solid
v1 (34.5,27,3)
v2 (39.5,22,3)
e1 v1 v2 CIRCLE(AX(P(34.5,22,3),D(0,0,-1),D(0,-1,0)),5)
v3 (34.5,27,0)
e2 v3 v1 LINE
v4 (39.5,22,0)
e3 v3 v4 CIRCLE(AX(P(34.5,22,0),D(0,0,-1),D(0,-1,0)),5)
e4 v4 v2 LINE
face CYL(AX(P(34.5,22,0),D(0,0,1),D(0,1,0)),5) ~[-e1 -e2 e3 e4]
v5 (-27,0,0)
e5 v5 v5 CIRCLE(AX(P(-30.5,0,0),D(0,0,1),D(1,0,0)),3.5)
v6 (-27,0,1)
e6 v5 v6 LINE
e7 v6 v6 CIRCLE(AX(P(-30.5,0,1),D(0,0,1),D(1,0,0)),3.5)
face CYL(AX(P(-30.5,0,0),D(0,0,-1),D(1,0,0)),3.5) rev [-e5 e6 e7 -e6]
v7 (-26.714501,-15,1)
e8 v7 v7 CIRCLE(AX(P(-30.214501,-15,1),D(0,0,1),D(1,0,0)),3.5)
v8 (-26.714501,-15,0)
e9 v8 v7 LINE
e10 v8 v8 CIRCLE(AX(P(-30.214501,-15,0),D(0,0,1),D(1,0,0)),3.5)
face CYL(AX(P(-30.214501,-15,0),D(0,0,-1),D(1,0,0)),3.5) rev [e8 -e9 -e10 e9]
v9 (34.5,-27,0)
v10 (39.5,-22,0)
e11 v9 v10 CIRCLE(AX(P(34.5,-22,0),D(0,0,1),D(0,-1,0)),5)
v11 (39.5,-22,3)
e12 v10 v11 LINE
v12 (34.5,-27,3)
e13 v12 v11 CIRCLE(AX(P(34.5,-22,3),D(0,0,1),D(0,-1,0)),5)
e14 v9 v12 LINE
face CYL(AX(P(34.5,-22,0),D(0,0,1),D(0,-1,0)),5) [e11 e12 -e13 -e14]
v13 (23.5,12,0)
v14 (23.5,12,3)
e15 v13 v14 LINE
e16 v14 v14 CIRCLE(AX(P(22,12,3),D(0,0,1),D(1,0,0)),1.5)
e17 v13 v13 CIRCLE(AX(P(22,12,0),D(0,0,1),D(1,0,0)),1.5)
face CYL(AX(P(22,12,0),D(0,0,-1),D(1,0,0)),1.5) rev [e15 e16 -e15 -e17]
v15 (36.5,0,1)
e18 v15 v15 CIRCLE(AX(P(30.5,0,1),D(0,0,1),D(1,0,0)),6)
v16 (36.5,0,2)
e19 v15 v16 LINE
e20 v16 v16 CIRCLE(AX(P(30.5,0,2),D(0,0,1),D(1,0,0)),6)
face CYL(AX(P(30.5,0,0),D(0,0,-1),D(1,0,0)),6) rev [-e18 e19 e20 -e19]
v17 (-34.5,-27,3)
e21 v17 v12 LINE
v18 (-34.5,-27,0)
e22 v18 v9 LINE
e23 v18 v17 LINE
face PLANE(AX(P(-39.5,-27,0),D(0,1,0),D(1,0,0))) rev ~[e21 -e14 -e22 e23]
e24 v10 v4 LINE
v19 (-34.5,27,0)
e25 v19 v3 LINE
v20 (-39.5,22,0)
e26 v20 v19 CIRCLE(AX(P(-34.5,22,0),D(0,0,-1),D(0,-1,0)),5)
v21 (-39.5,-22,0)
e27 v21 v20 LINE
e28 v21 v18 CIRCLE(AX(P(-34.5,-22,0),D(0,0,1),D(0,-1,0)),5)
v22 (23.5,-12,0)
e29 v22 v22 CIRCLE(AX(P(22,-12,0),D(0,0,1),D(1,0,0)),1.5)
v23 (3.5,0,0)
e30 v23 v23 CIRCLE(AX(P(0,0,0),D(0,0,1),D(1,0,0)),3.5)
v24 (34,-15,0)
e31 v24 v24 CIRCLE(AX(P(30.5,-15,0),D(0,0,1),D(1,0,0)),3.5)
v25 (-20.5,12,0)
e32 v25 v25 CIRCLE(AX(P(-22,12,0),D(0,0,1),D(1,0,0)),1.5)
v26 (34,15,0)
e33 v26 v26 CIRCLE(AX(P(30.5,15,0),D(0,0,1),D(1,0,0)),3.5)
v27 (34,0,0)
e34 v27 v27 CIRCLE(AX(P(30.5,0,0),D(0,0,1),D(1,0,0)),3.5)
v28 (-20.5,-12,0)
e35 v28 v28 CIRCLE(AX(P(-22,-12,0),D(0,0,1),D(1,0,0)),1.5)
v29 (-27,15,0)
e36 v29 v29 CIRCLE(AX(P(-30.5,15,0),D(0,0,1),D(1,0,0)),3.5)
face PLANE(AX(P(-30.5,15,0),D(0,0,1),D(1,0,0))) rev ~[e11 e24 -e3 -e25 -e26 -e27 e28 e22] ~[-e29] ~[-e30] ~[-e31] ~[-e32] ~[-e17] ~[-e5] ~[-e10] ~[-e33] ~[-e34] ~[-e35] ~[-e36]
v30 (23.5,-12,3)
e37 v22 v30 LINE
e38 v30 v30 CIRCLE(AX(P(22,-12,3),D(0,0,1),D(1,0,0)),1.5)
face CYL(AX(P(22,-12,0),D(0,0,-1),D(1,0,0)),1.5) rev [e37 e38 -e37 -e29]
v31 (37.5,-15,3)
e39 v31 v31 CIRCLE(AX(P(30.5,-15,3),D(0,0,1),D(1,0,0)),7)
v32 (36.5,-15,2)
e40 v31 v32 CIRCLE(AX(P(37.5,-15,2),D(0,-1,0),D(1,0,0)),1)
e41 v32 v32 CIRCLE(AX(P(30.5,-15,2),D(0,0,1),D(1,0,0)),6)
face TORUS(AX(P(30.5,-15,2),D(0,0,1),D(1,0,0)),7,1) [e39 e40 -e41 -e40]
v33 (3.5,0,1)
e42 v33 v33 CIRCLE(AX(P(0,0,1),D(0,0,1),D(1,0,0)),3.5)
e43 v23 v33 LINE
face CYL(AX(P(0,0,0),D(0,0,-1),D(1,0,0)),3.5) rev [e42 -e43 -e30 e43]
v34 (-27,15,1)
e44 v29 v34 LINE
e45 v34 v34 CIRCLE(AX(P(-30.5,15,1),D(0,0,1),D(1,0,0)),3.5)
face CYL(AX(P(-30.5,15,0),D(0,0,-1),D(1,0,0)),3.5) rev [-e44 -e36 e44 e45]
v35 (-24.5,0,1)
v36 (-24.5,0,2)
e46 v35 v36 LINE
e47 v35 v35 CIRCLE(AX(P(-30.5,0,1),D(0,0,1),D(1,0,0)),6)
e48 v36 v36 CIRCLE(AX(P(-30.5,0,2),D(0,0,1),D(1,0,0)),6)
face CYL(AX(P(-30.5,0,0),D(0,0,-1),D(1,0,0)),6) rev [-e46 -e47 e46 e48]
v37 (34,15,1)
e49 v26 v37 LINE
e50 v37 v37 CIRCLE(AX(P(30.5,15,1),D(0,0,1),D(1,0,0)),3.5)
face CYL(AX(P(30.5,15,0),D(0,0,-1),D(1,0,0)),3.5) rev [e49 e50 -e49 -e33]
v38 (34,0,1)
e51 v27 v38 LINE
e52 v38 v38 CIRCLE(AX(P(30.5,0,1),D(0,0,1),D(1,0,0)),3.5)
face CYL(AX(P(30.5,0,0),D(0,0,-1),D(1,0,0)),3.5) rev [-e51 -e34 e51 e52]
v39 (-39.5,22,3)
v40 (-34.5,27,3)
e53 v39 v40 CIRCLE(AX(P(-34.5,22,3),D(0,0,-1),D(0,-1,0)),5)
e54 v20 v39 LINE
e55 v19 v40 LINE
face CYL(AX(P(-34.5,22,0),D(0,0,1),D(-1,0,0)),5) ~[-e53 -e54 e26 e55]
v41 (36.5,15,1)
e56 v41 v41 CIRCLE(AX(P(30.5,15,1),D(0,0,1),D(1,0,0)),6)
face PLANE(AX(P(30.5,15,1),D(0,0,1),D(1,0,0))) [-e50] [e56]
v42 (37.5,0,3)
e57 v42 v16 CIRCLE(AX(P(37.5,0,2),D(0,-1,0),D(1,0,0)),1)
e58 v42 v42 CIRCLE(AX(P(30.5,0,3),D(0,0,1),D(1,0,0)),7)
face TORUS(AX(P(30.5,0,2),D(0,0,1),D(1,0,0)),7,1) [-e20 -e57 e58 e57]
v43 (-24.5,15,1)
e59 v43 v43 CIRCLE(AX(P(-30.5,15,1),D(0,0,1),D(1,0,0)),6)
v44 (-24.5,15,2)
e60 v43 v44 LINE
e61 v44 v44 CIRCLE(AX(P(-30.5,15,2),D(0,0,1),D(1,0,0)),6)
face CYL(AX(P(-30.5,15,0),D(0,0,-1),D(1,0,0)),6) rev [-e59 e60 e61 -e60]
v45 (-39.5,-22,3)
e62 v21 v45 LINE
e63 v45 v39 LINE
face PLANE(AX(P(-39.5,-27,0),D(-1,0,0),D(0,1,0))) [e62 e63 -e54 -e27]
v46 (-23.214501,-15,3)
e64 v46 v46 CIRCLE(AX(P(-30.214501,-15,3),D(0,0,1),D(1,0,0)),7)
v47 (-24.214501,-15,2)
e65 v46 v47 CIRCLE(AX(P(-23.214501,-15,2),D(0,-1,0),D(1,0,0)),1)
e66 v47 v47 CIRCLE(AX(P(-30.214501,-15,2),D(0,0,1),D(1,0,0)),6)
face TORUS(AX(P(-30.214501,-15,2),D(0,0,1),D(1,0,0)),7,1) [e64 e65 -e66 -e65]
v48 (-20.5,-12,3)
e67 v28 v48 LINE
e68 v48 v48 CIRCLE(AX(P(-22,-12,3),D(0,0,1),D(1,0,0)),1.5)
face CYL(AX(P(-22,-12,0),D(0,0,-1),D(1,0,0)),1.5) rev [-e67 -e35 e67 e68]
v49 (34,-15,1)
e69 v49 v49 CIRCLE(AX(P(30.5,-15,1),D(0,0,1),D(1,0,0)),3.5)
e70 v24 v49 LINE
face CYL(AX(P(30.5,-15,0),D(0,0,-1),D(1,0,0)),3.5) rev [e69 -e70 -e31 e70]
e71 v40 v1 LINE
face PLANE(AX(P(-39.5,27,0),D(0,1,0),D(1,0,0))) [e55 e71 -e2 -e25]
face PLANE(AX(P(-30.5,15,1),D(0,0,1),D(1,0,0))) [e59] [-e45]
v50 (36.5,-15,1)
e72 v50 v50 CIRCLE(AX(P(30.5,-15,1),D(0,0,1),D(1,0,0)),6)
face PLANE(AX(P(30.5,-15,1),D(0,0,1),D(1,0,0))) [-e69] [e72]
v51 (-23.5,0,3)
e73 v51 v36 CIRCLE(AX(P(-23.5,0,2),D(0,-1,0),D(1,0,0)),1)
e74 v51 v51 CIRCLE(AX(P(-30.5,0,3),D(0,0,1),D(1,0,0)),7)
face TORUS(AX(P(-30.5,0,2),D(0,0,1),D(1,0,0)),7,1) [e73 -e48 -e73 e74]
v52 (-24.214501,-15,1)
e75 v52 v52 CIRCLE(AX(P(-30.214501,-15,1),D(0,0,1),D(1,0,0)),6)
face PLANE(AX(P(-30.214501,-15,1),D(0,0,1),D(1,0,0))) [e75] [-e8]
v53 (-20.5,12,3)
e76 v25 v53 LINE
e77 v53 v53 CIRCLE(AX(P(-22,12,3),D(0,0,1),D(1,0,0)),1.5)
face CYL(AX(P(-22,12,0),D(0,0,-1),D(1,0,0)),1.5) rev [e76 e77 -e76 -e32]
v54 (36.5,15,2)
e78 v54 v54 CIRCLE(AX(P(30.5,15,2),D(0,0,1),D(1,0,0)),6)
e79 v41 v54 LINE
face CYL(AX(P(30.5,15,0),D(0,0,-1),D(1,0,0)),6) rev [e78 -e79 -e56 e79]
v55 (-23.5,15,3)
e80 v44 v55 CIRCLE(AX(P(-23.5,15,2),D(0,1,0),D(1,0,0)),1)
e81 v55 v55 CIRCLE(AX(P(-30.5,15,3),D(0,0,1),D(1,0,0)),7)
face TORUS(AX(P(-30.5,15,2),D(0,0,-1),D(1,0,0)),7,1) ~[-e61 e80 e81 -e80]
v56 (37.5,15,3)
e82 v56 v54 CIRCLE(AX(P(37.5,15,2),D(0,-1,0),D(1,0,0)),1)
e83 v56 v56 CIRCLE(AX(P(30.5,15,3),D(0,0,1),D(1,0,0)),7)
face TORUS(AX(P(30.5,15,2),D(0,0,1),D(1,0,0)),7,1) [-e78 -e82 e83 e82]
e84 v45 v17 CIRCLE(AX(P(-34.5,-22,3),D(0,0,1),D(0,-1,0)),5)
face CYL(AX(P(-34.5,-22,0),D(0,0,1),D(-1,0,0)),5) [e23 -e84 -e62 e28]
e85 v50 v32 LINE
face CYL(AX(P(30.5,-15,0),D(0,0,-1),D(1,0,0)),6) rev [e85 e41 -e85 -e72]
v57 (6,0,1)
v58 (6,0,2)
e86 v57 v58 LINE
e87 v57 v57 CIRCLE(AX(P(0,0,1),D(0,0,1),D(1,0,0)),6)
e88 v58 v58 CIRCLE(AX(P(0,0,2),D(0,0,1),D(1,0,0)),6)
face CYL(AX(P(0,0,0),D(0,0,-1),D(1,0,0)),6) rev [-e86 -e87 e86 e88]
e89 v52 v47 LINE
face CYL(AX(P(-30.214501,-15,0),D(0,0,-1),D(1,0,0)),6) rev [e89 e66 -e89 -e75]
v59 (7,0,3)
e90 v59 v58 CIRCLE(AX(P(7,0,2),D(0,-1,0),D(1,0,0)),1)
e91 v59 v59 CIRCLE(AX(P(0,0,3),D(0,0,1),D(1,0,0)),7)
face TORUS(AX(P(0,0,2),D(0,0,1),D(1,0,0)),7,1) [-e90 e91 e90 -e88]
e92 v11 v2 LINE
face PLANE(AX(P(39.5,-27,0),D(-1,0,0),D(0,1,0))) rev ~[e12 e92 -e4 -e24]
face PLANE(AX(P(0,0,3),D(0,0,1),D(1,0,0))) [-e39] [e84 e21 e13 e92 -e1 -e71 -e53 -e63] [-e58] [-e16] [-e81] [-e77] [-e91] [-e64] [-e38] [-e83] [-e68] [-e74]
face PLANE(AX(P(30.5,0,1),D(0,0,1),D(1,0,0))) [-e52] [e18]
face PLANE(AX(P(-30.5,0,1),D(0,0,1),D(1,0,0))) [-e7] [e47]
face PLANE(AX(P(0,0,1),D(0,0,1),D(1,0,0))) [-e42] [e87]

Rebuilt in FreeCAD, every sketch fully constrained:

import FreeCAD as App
import Part
import Sketcher
from FreeCAD import Vector
Q = App.Units.Quantity


def edges_at(feature, points):
    """Names of the edges that pass closest to the given points."""
    edges = feature.Shape.Edges
    near = lambda p: min(range(len(edges)), key=lambda i: edges[i].distToShape(Part.Vertex(*p))[0])
    return sorted({f"Edge{near(p) + 1}" for p in points})

doc = App.newDocument("Part")
params = doc.addObject("Spreadsheet::Sheet", "Params")
for row, (alias, value) in enumerate([
    ("sketch1_diameter", "12 mm"),
    ("sketch1_diameter2", "3 mm"),
    ("sketch1_width", "79 mm"),
    ("sketch1_height", "54 mm"),
    ("pad1_length", "3 mm"),
    ("sketch2_diameter", "12 mm"),
    ("sketch2_diameter2", "7 mm"),
    ("pad2_length", "1 mm"),
    ("fillet_radius", "1 mm"),
    ("fillet2_radius", "5 mm"),
], start=1):
    params.set(f"A{row}", alias)
    params.set(f"B{row}", "=" + value)
    params.setAlias(f"B{row}", alias)

body = doc.addObject("PartDesign::Body", "Body")

# Sketch on XY plane
sketch1 = doc.addObject("Sketcher::SketchObject", "Sketch")
body.addObject(sketch1)
sketch1.AttachmentSupport = (doc.XY_Plane, [""])
sketch1.MapMode = "FlatFace"
sketch1.addGeometry(Part.LineSegment(Vector(-39.5, 27, 0), Vector(-39.5, -27, 0)), False)
sketch1.addGeometry(Part.LineSegment(Vector(-39.5, -27, 0), Vector(39.5, -27, 0)), False)
sketch1.addGeometry(Part.LineSegment(Vector(39.5, -27, 0), Vector(39.5, 27, 0)), False)
sketch1.addGeometry(Part.LineSegment(Vector(39.5, 27, 0), Vector(-39.5, 27, 0)), False)
sketch1.addGeometry(Part.Circle(Vector(-30.2, -15, 0), Vector(0, 0, 1), 6), False)
sketch1.addGeometry(Part.Circle(Vector(-22, -12, 0), Vector(0, 0, 1), 1.5), False)
sketch1.addGeometry(Part.Circle(Vector(22, -12, 0), Vector(0, 0, 1), 1.5), False)
sketch1.addGeometry(Part.Circle(Vector(30.5, -15, 0), Vector(0, 0, 1), 6), False)
sketch1.addGeometry(Part.Circle(Vector(-30.5, 0, 0), Vector(0, 0, 1), 6), False)
sketch1.addGeometry(Part.Circle(Vector(-30.5, 15, 0), Vector(0, 0, 1), 6), False)
sketch1.addGeometry(Part.Circle(Vector(-22, 12, 0), Vector(0, 0, 1), 1.5), False)
sketch1.addGeometry(Part.Circle(Vector(0, 0, 0), Vector(0, 0, 1), 6), False)
sketch1.addGeometry(Part.Circle(Vector(30.5, 0, 0), Vector(0, 0, 1), 6), False)
sketch1.addGeometry(Part.Circle(Vector(22, 12, 0), Vector(0, 0, 1), 1.5), False)
sketch1.addGeometry(Part.Circle(Vector(30.5, 15, 0), Vector(0, 0, 1), 6), False)
sketch1.addConstraint(Sketcher.Constraint("Coincident", 0, 2, 1, 1))
sketch1.addConstraint(Sketcher.Constraint("Coincident", 1, 2, 2, 1))
sketch1.addConstraint(Sketcher.Constraint("Coincident", 2, 2, 3, 1))
sketch1.addConstraint(Sketcher.Constraint("Coincident", 3, 2, 0, 1))
sketch1.addConstraint(Sketcher.Constraint("Vertical", 0))
sketch1.addConstraint(Sketcher.Constraint("Horizontal", 1))
sketch1.addConstraint(Sketcher.Constraint("Vertical", 2))
sketch1.addConstraint(Sketcher.Constraint("Horizontal", 3))
sketch1.addConstraint(Sketcher.Constraint("Coincident", 11, 3, -1, 1))
sketch1.addConstraint(Sketcher.Constraint("Equal", 5, 6))
sketch1.addConstraint(Sketcher.Constraint("Equal", 4, 7))
sketch1.addConstraint(Sketcher.Constraint("Equal", 7, 8))
sketch1.addConstraint(Sketcher.Constraint("Equal", 8, 9))
sketch1.addConstraint(Sketcher.Constraint("Equal", 6, 10))
sketch1.addConstraint(Sketcher.Constraint("Equal", 9, 11))
sketch1.addConstraint(Sketcher.Constraint("Equal", 11, 12))
sketch1.addConstraint(Sketcher.Constraint("Equal", 10, 13))
sketch1.addConstraint(Sketcher.Constraint("Equal", 12, 14))
sketch1.addConstraint(Sketcher.Constraint("Symmetric", 7, 3, 9, 3, -1, 1))
sketch1.addConstraint(Sketcher.Constraint("Symmetric", 6, 3, 10, 3, -1, 1))
sketch1.addConstraint(Sketcher.Constraint("Symmetric", 8, 3, 12, 3, -1, 1))
sketch1.addConstraint(Sketcher.Constraint("Symmetric", 5, 3, 13, 3, -1, 1))
sketch1.addConstraint(Sketcher.Constraint("Symmetric", 0, 2, 2, 2, -1, 1))
sketch1.addConstraint(Sketcher.Constraint("Symmetric", 5, 3, 6, 3, -2))
sketch1.addConstraint(Sketcher.Constraint("Symmetric", 9, 3, 14, 3, -2))
sketch1.addConstraint(Sketcher.Constraint("PointOnObject", 8, 3, -1))
sketch1.addConstraint(Sketcher.Constraint("Horizontal", 4, 3, 7, 3))
sketch1.addConstraint(Sketcher.Constraint("Vertical", 8, 3, 9, 3))
sketch1.addConstraint(Sketcher.Constraint("Diameter", 4, Q("12 mm")))
sketch1.addConstraint(Sketcher.Constraint("Diameter", 5, Q("3 mm")))
sketch1.addConstraint(Sketcher.Constraint("DistanceX", 1, 1, 1, 2, Q("79 mm")))
sketch1.addConstraint(Sketcher.Constraint("DistanceY", 0, 2, 0, 1, Q("54 mm")))
sketch1.addConstraint(Sketcher.Constraint("DistanceY", 4, 3, -1, 1, Q("15 mm")))
sketch1.addConstraint(Sketcher.Constraint("DistanceX", 5, 3, -1, 1, Q("22 mm")))
sketch1.addConstraint(Sketcher.Constraint("DistanceY", 5, 3, -1, 1, Q("12 mm")))
sketch1.addConstraint(Sketcher.Constraint("DistanceX", 8, 3, 7, 3, Q("61 mm")))
sketch1.addConstraint(Sketcher.Constraint("DistanceX", 4, 3, -1, 1, Q("30.214501 mm")))
sketch1.setExpression("Constraints[28]", "Params.sketch1_diameter")
sketch1.setExpression("Constraints[29]", "Params.sketch1_diameter2")
sketch1.setExpression("Constraints[30]", "Params.sketch1_width")
sketch1.setExpression("Constraints[31]", "Params.sketch1_height")
pad1 = doc.addObject("PartDesign::Pad", "Pad")
body.addObject(pad1)
pad1.Profile = sketch1
pad1.setExpression("Length", "Params.pad1_length")

# Sketch on XY plane
sketch2 = doc.addObject("Sketcher::SketchObject", "Sketch001")
body.addObject(sketch2)
sketch2.AttachmentSupport = (doc.XY_Plane, [""])
sketch2.MapMode = "FlatFace"
sketch2.addGeometry(Part.Circle(Vector(-30.5, 15, 0), Vector(0, 0, 1), 6), False)
sketch2.addGeometry(Part.Circle(Vector(-30.5, 15, 0), Vector(0, 0, 1), 3.5), False)
sketch2.addGeometry(Part.Circle(Vector(30.5, 15, 0), Vector(0, 0, 1), 6), False)
sketch2.addGeometry(Part.Circle(Vector(30.5, 15, 0), Vector(0, 0, 1), 3.5), False)
sketch2.addGeometry(Part.Circle(Vector(30.5, 0, 0), Vector(0, 0, 1), 6), False)
sketch2.addGeometry(Part.Circle(Vector(30.5, 0, 0), Vector(0, 0, 1), 3.5), False)
sketch2.addGeometry(Part.Circle(Vector(30.5, -15, 0), Vector(0, 0, 1), 6), False)
sketch2.addGeometry(Part.Circle(Vector(30.5, -15, 0), Vector(0, 0, 1), 3.5), False)
sketch2.addGeometry(Part.Circle(Vector(-30.2, -15, 0), Vector(0, 0, 1), 6), False)
sketch2.addGeometry(Part.Circle(Vector(-30.2, -15, 0), Vector(0, 0, 1), 3.5), False)
sketch2.addGeometry(Part.Circle(Vector(-30.5, 0, 0), Vector(0, 0, 1), 6), False)
sketch2.addGeometry(Part.Circle(Vector(-30.5, 0, 0), Vector(0, 0, 1), 3.5), False)
sketch2.addGeometry(Part.Circle(Vector(0, 0, 0), Vector(0, 0, 1), 6), False)
sketch2.addGeometry(Part.Circle(Vector(0, 0, 0), Vector(0, 0, 1), 3.5), False)
sketch2.addConstraint(Sketcher.Constraint("Coincident", 12, 3, -1, 1))
sketch2.addConstraint(Sketcher.Constraint("Coincident", 13, 3, -1, 1))
sketch2.addConstraint(Sketcher.Constraint("Coincident", 1, 3, 0, 3))
sketch2.addConstraint(Sketcher.Constraint("Coincident", 3, 3, 2, 3))
sketch2.addConstraint(Sketcher.Constraint("Coincident", 5, 3, 4, 3))
sketch2.addConstraint(Sketcher.Constraint("Coincident", 7, 3, 6, 3))
sketch2.addConstraint(Sketcher.Constraint("Coincident", 9, 3, 8, 3))
sketch2.addConstraint(Sketcher.Constraint("Coincident", 11, 3, 10, 3))
sketch2.addConstraint(Sketcher.Constraint("Equal", 0, 2))
sketch2.addConstraint(Sketcher.Constraint("Equal", 1, 3))
sketch2.addConstraint(Sketcher.Constraint("Equal", 2, 4))
sketch2.addConstraint(Sketcher.Constraint("Equal", 3, 5))
sketch2.addConstraint(Sketcher.Constraint("Equal", 4, 6))
sketch2.addConstraint(Sketcher.Constraint("Equal", 5, 7))
sketch2.addConstraint(Sketcher.Constraint("Equal", 6, 8))
sketch2.addConstraint(Sketcher.Constraint("Equal", 7, 9))
sketch2.addConstraint(Sketcher.Constraint("Equal", 8, 10))
sketch2.addConstraint(Sketcher.Constraint("Equal", 9, 11))
sketch2.addConstraint(Sketcher.Constraint("Equal", 10, 12))
sketch2.addConstraint(Sketcher.Constraint("Equal", 11, 13))
sketch2.addConstraint(Sketcher.Constraint("Symmetric", 0, 3, 6, 3, -1, 1))
sketch2.addConstraint(Sketcher.Constraint("Symmetric", 4, 3, 10, 3, -1, 1))
sketch2.addConstraint(Sketcher.Constraint("Symmetric", 0, 3, 2, 3, -2))
sketch2.addConstraint(Sketcher.Constraint("PointOnObject", 4, 3, -1))
sketch2.addConstraint(Sketcher.Constraint("Horizontal", 7, 3, 8, 3))
sketch2.addConstraint(Sketcher.Constraint("Vertical", 3, 3, 4, 3))
sketch2.addConstraint(Sketcher.Constraint("Diameter", 0, Q("12 mm")))
sketch2.addConstraint(Sketcher.Constraint("Diameter", 1, Q("7 mm")))
sketch2.addConstraint(Sketcher.Constraint("DistanceY", -1, 1, 0, 3, Q("15 mm")))
sketch2.addConstraint(Sketcher.Constraint("DistanceX", 0, 3, 2, 3, Q("61 mm")))
sketch2.addConstraint(Sketcher.Constraint("DistanceX", 8, 3, -1, 1, Q("30.214501 mm")))
sketch2.setExpression("Constraints[26]", "Params.sketch2_diameter")
sketch2.setExpression("Constraints[27]", "Params.sketch2_diameter2")
pad2 = doc.addObject("PartDesign::Pad", "Pad001")
body.addObject(pad2)
pad2.Profile = sketch2
pad2.setExpression("Length", "Params.pad2_length")
doc.recompute()

fillet = doc.addObject("PartDesign::Fillet", "Fillet")
body.addObject(fillet)
fillet.Base = (pad2, edges_at(pad2, [
    (-36.5, 15, 3),
    (24.5, 15, 3),
    (24.5, 0, 3),
    (24.5, -15, 3),
    (-36.215, -15, 3),
    (-36.5, 0, 3),
    (-6, 0, 3),
]))
fillet.setExpression("Radius", "Params.fillet_radius")
doc.recompute()

fillet2 = doc.addObject("PartDesign::Fillet", "Fillet001")
body.addObject(fillet2)
fillet2.Base = (fillet, edges_at(fillet, [
    (-39.5, -27, 1.5),
    (39.5, -27, 1.5),
    (39.5, 27, 1.5),
    (-39.5, 27, 1.5),
]))
fillet2.setExpression("Radius", "Params.fillet2_radius")

doc.recompute()
